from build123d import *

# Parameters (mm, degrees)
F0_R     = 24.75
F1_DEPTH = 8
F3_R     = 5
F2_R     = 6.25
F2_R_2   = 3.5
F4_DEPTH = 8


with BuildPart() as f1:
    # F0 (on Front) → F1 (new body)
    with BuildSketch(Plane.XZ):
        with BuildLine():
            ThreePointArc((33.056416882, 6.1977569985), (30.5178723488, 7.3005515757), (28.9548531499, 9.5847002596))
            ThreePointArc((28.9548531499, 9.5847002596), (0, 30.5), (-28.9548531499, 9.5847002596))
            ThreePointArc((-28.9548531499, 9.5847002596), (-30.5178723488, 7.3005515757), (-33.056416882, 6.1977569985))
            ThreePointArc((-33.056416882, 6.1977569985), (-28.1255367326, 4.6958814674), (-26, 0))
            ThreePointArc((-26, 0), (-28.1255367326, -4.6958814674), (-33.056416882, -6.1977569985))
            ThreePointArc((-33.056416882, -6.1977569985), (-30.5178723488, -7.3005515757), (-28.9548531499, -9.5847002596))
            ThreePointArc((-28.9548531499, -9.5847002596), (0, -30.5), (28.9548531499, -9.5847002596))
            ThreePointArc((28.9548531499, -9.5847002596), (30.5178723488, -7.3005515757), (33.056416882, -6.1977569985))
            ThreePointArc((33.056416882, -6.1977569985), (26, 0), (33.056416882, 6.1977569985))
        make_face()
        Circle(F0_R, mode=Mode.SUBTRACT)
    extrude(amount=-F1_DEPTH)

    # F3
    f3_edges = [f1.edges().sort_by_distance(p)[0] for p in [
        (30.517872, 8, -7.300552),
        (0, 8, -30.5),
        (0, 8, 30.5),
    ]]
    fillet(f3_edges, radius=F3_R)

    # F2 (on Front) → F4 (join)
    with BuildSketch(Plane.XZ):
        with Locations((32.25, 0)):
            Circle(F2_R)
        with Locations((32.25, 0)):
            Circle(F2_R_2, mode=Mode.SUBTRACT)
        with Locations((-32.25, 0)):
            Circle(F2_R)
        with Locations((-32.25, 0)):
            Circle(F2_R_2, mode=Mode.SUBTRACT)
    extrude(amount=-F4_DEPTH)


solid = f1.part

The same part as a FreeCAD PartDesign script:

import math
import FreeCAD as App
import Part
import Sketcher
Q = App.Units.Quantity


def edges_at(feature, points):
    """Names of the edges that pass closest to the given points."""
    edges = feature.Shape.Edges
    near = lambda p: min(range(len(edges)), key=lambda i: edges[i].distToShape(Part.Vertex(*p))[0])
    return sorted({f"Edge{near(p) + 1}" for p in points})

doc = App.newDocument("Part")
body = doc.addObject("PartDesign::Body", "Body")

# Sketch on XZ plane
sketch1 = doc.addObject("Sketcher::SketchObject", "Sketch")
body.addObject(sketch1)
sketch1.AttachmentSupport = (doc.XZ_Plane, [""])
sketch1.MapMode = "FlatFace"
sketch1.addGeometry([
    Part.ArcOfCircle(Part.Circle(App.Vector(34, 11, 0), App.Vector(0, 0, 1), 5), math.radians(-162), math.radians(-97)),  # 0
    Part.ArcOfCircle(Part.Circle(App.Vector(0, 0, 0), App.Vector(0, 0, 1), 30), math.radians(18), math.radians(162)),  # 1
    Part.ArcOfCircle(Part.Circle(App.Vector(-34, 11, 0), App.Vector(0, 0, 1), 5), math.radians(-83), math.radians(-18)),  # 2
    Part.ArcOfCircle(Part.Circle(App.Vector(-32, 0, 0), App.Vector(0, 0, 1), 6), math.radians(-97), math.radians(97)),  # 3
    Part.ArcOfCircle(Part.Circle(App.Vector(-34, -11, 0), App.Vector(0, 0, 1), 5), math.radians(18), math.radians(83)),  # 4
    Part.ArcOfCircle(Part.Circle(App.Vector(0, 0, 0), App.Vector(0, 0, 1), 30), math.radians(-162), math.radians(-18)),  # 5
    Part.ArcOfCircle(Part.Circle(App.Vector(34, -11, 0), App.Vector(0, 0, 1), 5), math.radians(97), math.radians(162)),  # 6
    Part.ArcOfCircle(Part.Circle(App.Vector(32, 0, 0), App.Vector(0, 0, 1), 6), math.radians(83), math.radians(277)),  # 7
    Part.Circle(App.Vector(0, 0, 0), App.Vector(0, 0, 1), 25),  # 8
], False)
sketch1.addConstraint([
    Sketcher.Constraint("Tangent", 0, 1, 1, 1),
    Sketcher.Constraint("Tangent", 1, 2, 2, 2),
    Sketcher.Constraint("Tangent", 2, 1, 3, 2),
    Sketcher.Constraint("Tangent", 3, 1, 4, 2),
    Sketcher.Constraint("Tangent", 4, 1, 5, 1),
    Sketcher.Constraint("Tangent", 5, 2, 6, 2),
    Sketcher.Constraint("Tangent", 6, 1, 7, 2),
    Sketcher.Constraint("Tangent", 7, 1, 0, 2),
    Sketcher.Constraint("Coincident", 1, 3, -1, 1),
    Sketcher.Constraint("Coincident", 5, 3, -1, 1),
    Sketcher.Constraint("Coincident", 8, 3, -1, 1),
    Sketcher.Constraint("Equal", 0, 2),
    Sketcher.Constraint("Equal", 2, 4),
    Sketcher.Constraint("Equal", 1, 5),
    Sketcher.Constraint("Equal", 4, 6),
    Sketcher.Constraint("Equal", 3, 7),
    Sketcher.Constraint("Symmetric", 3, 3, 7, 3, -1, 1),
    Sketcher.Constraint("PointOnObject", 3, 3, -1),
    Sketcher.Constraint("Radius", 0, Q("5 mm")),
    Sketcher.Constraint("Diameter", 8, Q("49.5 mm")),
    Sketcher.Constraint("Radius", 1, Q("30.5 mm")),
    Sketcher.Constraint("Radius", 3, Q("6.25 mm")),
    Sketcher.Constraint("DistanceX", 3, 3, 7, 3, Q("64.5 mm")),
])
pad1 = doc.addObject("PartDesign::Pad", "Pad")
body.addObject(pad1)
pad1.Profile = sketch1
pad1.Length = 8
pad1.Reversed = True
doc.recompute()

fillet = doc.addObject("PartDesign::Fillet", "Fillet")
body.addObject(fillet)
fillet.Base = (pad1, edges_at(pad1, [(30.518, 8, -7.301), (0, 8, -30.5), (0, 8, 30.5)]))
fillet.Radius = 5

# Sketch on XZ plane
sketch2 = doc.addObject("Sketcher::SketchObject", "Sketch001")
body.addObject(sketch2)
sketch2.AttachmentSupport = (doc.XZ_Plane, [""])
sketch2.MapMode = "FlatFace"
sketch2.addGeometry([
    Part.Circle(App.Vector(32.2, 0, 0), App.Vector(0, 0, 1), 6.2),
    Part.Circle(App.Vector(32.2, 0, 0), App.Vector(0, 0, 1), 3.5),
    Part.Circle(App.Vector(-32.2, 0, 0), App.Vector(0, 0, 1), 6.2),
    Part.Circle(App.Vector(-32.2, 0, 0), App.Vector(0, 0, 1), 3.5),
], False)
sketch2.addConstraint([
    Sketcher.Constraint("Coincident", 1, 3, 0, 3),
    Sketcher.Constraint("Coincident", 3, 3, 2, 3),
    Sketcher.Constraint("Equal", 0, 2),
    Sketcher.Constraint("Equal", 1, 3),
    Sketcher.Constraint("Symmetric", 0, 3, 2, 3, -1, 1),
    Sketcher.Constraint("PointOnObject", 0, 3, -1),
    Sketcher.Constraint("Diameter", 1, Q("7 mm")),
    Sketcher.Constraint("Diameter", 0, Q("12.5 mm")),
    Sketcher.Constraint("DistanceX", 2, 3, 0, 3, Q("64.5 mm")),
])
pad2 = doc.addObject("PartDesign::Pad", "Pad001")
body.addObject(pad2)
pad2.Profile = sketch2
pad2.Length = 8
pad2.Reversed = True

doc.recompute()
